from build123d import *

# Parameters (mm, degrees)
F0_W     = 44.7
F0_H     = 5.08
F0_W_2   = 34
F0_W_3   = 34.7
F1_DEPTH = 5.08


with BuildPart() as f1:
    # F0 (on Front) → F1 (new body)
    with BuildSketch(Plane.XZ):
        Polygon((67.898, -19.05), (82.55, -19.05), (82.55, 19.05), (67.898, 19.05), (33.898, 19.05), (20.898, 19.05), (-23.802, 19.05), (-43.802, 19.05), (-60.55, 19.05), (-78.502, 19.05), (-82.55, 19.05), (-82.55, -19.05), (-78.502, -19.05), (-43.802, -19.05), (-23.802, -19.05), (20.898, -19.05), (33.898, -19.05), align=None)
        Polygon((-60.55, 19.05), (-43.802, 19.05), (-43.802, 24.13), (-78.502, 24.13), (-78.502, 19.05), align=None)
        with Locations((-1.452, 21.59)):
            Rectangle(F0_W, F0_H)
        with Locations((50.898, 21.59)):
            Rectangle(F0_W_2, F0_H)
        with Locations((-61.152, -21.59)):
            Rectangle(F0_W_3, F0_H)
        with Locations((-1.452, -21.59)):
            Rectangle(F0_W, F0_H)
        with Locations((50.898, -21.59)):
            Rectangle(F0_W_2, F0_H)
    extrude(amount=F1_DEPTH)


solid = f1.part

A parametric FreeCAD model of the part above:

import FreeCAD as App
import Part
import Sketcher

V = App.Vector
Q = App.Units.Quantity


def add_polygon(sketch, points):
    """Adds a closed chain of lines whose ends are joined by coincident constraints."""
    first, n = sketch.GeometryCount, len(points)
    for a, b in zip(points, points[1:] + points[:1]):
        sketch.addGeometry(Part.LineSegment(App.Vector(*a, 0), App.Vector(*b, 0)), False)
    for i in range(n):
        sketch.addConstraint(Sketcher.Constraint("Coincident", first + i, 2, first + (i + 1) % n, 1))

doc = App.newDocument("Part")
body = doc.addObject("PartDesign::Body", "Body")

sketch1 = body.newObject("Sketcher::SketchObject", "Sketch")
sketch1.AttachmentSupport = (doc.getObject("XZ_Plane"), [""])
sketch1.MapMode = "FlatFace"
add_polygon(sketch1, [(82.55, -19.05), (82.55, 19.05), (67.898, 19.05), (67.898, 24.13), (33.898, 24.13), (33.898, 19.05), (20.898, 19.05), (20.898, 24.13), (-23.802, 24.13), (-23.802, 19.05), (-43.802, 19.05), (-43.802, 24.13), (-78.502, 24.13), (-78.502, 19.05), (-82.55, 19.05), (-82.55, -19.05), (-78.502, -19.05), (-78.502, -24.13), (-43.802, -24.13), (-43.802, -19.05), (-23.802, -19.05), (-23.802, -24.13), (20.898, -24.13), (20.898, -19.05), (33.898, -19.05), (33.898, -24.13), (67.898, -24.13), (67.898, -19.05)])
sketch1.addConstraint([
    Sketcher.Constraint("Vertical", 0),
    Sketcher.Constraint("Horizontal", 1),
    Sketcher.Constraint("Vertical", 2),
    Sketcher.Constraint("Horizontal", 3),
    Sketcher.Constraint("Vertical", 4),
    Sketcher.Constraint("Horizontal", 5),
    Sketcher.Constraint("Vertical", 6),
    Sketcher.Constraint("Horizontal", 7),
    Sketcher.Constraint("Vertical", 8),
    Sketcher.Constraint("Horizontal", 9),
    Sketcher.Constraint("Vertical", 10),
    Sketcher.Constraint("Horizontal", 11),
    Sketcher.Constraint("Vertical", 12),
    Sketcher.Constraint("Horizontal", 13),
    Sketcher.Constraint("Vertical", 14),
    Sketcher.Constraint("Horizontal", 15),
    Sketcher.Constraint("Vertical", 16),
    Sketcher.Constraint("Horizontal", 17),
    Sketcher.Constraint("Vertical", 18),
    Sketcher.Constraint("Horizontal", 19),
    Sketcher.Constraint("Vertical", 20),
    Sketcher.Constraint("Horizontal", 21),
    Sketcher.Constraint("Vertical", 22),
    Sketcher.Constraint("Horizontal", 23),
    Sketcher.Constraint("Vertical", 24),
    Sketcher.Constraint("Horizontal", 25),
    Sketcher.Constraint("Vertical", 26),
    Sketcher.Constraint("Horizontal", 27),
    Sketcher.Constraint("Symmetric", 0, 2, 14, 2, -1, 1),
    Sketcher.Constraint("Symmetric", 12, 2, 15, 2, -1),
    Sketcher.Constraint("Symmetric", 10, 2, 17, 2, -1),
    Sketcher.Constraint("Symmetric", 8, 2, 19, 2, -1),
    Sketcher.Constraint("Symmetric", 6, 2, 21, 2, -1),
    Sketcher.Constraint("Symmetric", 4, 2, 23, 2, -1),
    Sketcher.Constraint("Symmetric", 2, 2, 25, 2, -1),
    Sketcher.Constraint("Horizontal", 1, 2, 4, 2),
    Sketcher.Constraint("Horizontal", 3, 2, 6, 2),
    Sketcher.Constraint("Horizontal", 5, 2, 8, 2),
    Sketcher.Constraint("Horizontal", 7, 2, 10, 2),
    Sketcher.Constraint("Horizontal", 23, 2, 26, 2),
    Sketcher.Constraint("DistanceX", 3, 2, 3, 1, Q("34 mm")),
    Sketcher.Constraint("DistanceX", 5, 2, 5, 1, Q("13 mm")),
    Sketcher.Constraint("DistanceX", 9, 2, 9, 1, Q("20 mm")),
    Sketcher.Constraint("DistanceX", 7, 2, 7, 1, Q("44.7 mm")),
    Sketcher.Constraint("DistanceX", 11, 2, 11, 1, Q("34.7 mm")),
    Sketcher.Constraint("DistanceY", 0, 1, 0, 2, Q("38.1 mm")),
    Sketcher.Constraint("DistanceY", 2, 1, 2, 2, Q("5.08 mm")),
    Sketcher.Constraint("DistanceX", 1, 2, 1, 1, Q("14.652 mm")),
    Sketcher.Constraint("DistanceX", 13, 2, 13, 1, Q("4.048 mm")),
])
pad1 = body.newObject("PartDesign::Pad", "Pad")
pad1.Profile = sketch1
pad1.Length = 5.08

doc.recompute()
